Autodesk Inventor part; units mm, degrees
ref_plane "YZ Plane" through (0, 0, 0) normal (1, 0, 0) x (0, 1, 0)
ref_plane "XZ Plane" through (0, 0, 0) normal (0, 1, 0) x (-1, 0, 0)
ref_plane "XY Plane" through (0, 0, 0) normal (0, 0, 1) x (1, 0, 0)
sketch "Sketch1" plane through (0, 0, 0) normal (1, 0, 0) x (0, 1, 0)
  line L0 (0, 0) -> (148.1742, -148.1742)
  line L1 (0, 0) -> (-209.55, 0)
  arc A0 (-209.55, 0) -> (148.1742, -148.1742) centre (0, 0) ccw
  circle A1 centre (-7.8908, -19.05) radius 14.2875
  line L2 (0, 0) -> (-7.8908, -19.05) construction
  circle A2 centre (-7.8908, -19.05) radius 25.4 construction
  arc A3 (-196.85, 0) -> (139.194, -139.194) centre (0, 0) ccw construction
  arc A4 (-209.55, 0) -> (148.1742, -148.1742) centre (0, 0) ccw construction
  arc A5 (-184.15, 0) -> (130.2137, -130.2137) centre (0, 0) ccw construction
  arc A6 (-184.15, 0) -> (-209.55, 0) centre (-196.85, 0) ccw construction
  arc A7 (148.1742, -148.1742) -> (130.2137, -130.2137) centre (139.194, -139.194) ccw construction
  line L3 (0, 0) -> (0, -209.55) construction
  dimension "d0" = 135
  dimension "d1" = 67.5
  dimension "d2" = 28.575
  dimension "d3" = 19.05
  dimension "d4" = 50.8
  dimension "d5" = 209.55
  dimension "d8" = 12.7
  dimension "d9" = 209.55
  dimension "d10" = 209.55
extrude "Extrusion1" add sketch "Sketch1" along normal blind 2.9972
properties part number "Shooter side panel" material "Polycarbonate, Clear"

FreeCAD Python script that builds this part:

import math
import FreeCAD as App
import Part
import Sketcher
from FreeCAD import Vector
Q = App.Units.Quantity

doc = App.newDocument("Part")
body = doc.addObject("PartDesign::Body", "Body")

# Sketch on YZ plane
sketch1 = body.newObject("Sketcher::SketchObject", "Sketch")
sketch1.AttachmentSupport = (doc.getObject("YZ_Plane"), [""])
sketch1.MapMode = "FlatFace"
sketch1.addGeometry([
    Part.LineSegment(Vector(148, -148, 0), Vector(0, 0, 0)),
    Part.LineSegment(Vector(0, 0, 0), Vector(-210, 0, 0)),
    Part.ArcOfCircle(Part.Circle(Vector(0, 0, 0), Vector(0, 0, 1), 210), math.radians(180), math.radians(315)),
    Part.Circle(Vector(-8, -19, 0), Vector(0, 0, 1), 14),
], False)
sketch1.addConstraint([
    Sketcher.Constraint("Coincident", 0, 2, 1, 1),
    Sketcher.Constraint("Coincident", 1, 2, 2, 1),
    Sketcher.Constraint("Coincident", 2, 2, 0, 1),
    Sketcher.Constraint("Horizontal", 1),
    Sketcher.Constraint("Coincident", 2, 3, -1, 1),
    Sketcher.Constraint("Coincident", 0, 2, -1, 1),
    Sketcher.Constraint("Radius", 2, Q("8.25 in")),
    Sketcher.Constraint("Diameter", 3, Q("1.125 in")),
    Sketcher.Constraint("Angle", 0, Q("135 deg")),
    Sketcher.Constraint("DistanceY", 3, 3, -1, 1, Q("0.75 in")),
    Sketcher.Constraint("DistanceX", 3, 3, 2, 2, Q("6.1443 in")),
])
pad1 = body.newObject("PartDesign::Pad", "Pad")
pad1.Profile = sketch1
pad1.Length = Q("0.118 in")

doc.recompute()
